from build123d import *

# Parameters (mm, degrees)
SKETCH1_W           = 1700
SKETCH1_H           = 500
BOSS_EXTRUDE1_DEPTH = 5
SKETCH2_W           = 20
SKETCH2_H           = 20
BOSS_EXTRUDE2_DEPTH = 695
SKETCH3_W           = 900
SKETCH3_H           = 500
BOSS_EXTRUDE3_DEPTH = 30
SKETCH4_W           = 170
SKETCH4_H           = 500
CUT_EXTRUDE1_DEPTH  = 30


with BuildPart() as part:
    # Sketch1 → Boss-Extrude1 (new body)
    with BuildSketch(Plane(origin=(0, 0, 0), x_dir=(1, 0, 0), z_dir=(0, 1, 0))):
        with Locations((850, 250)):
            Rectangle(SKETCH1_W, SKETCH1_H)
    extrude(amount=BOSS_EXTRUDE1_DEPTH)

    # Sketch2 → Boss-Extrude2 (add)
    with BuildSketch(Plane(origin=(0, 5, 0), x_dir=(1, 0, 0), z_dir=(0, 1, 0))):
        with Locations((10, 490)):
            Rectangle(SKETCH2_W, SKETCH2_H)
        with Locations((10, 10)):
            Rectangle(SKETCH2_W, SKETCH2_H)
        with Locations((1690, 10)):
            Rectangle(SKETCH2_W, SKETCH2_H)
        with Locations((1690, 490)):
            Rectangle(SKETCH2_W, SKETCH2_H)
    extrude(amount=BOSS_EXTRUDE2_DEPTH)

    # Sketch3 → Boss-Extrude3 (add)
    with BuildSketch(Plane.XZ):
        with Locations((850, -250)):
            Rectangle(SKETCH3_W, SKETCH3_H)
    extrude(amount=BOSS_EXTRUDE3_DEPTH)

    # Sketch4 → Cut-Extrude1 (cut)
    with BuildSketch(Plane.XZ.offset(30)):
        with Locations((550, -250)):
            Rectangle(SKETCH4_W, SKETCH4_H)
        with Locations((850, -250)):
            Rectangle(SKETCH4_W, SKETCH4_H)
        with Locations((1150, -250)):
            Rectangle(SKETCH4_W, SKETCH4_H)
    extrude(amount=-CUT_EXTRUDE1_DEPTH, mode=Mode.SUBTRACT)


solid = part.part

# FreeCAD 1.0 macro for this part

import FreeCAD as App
import Part
import Sketcher
from FreeCAD import Vector


def add_polygon(sketch, points):
    """Adds a closed chain of lines whose ends are joined by coincident constraints."""
    first, n = sketch.GeometryCount, len(points)
    for a, b in zip(points, points[1:] + points[:1]):
        sketch.addGeometry(Part.LineSegment(App.Vector(*a, 0), App.Vector(*b, 0)), False)
    for i in range(n):
        sketch.addConstraint(Sketcher.Constraint("Coincident", first + i, 2, first + (i + 1) % n, 1))

doc = App.newDocument("Part")
body = doc.addObject("PartDesign::Body", "Body")

sketch1 = body.newObject("Sketcher::SketchObject", "Sketch")
sketch1.AttachmentSupport = (doc.getObject("XZ_Plane"), [""])
sketch1.MapMode = "FlatFace"
add_polygon(sketch1, [(0, -500), (0, 0), (1700, 0), (1700, -500)])
sketch1.addConstraint([
    Sketcher.Constraint("Vertical", 0),
    Sketcher.Constraint("Horizontal", 1),
    Sketcher.Constraint("Vertical", 2),
    Sketcher.Constraint("Horizontal", 3),
    Sketcher.Constraint("Coincident", 0, 2, -1, 1),
    Sketcher.Constraint("DistanceX", 1, 1, 1, 2, 1700.0),
    Sketcher.Constraint("DistanceY", 0, 1, 0, 2, 500.0),
])
pad1 = body.newObject("PartDesign::Pad", "Pad")
pad1.Profile = sketch1
pad1.Length = 5
pad1.Reversed = True

sketch2 = body.newObject("Sketcher::SketchObject", "Sketch001")
sketch2.AttachmentSupport = (doc.getObject("XZ_Plane"), [""])
sketch2.MapMode = "FlatFace"
sketch2.AttachmentOffset = App.Placement(Vector(0, 0, -5), App.Rotation())
add_polygon(sketch2, [(0, -500), (0, -480), (20, -480), (20, -500)])
add_polygon(sketch2, [(0, -20), (0, 0), (20, 0), (20, -20)])
add_polygon(sketch2, [(1680, -20), (1680, 0), (1700, 0), (1700, -20)])
add_polygon(sketch2, [(1680, -500), (1680, -480), (1700, -480), (1700, -500)])
sketch2.addConstraint([
    Sketcher.Constraint("Vertical", 0),
    Sketcher.Constraint("Horizontal", 1),
    Sketcher.Constraint("Vertical", 2),
    Sketcher.Constraint("Horizontal", 3),
    Sketcher.Constraint("Vertical", 4),
    Sketcher.Constraint("Horizontal", 5),
    Sketcher.Constraint("Vertical", 6),
    Sketcher.Constraint("Horizontal", 7),
    Sketcher.Constraint("Vertical", 8),
    Sketcher.Constraint("Horizontal", 9),
    Sketcher.Constraint("Vertical", 10),
    Sketcher.Constraint("Horizontal", 11),
    Sketcher.Constraint("Vertical", 12),
    Sketcher.Constraint("Horizontal", 13),
    Sketcher.Constraint("Vertical", 14),
    Sketcher.Constraint("Horizontal", 15),
    Sketcher.Constraint("Coincident", 4, 2, -1, 1),
    Sketcher.Constraint("PointOnObject", 0, 2, -2),
    Sketcher.Constraint("PointOnObject", 8, 2, -1),
    Sketcher.Constraint("Horizontal", 7, 2, 10, 2),
    Sketcher.Constraint("Horizontal", 1, 2, 12, 2),
    Sketcher.Constraint("Horizontal", 3, 2, 14, 2),
    Sketcher.Constraint("Vertical", 2, 2, 5, 2),
    Sketcher.Constraint("Vertical", 11, 2, 12, 2),
    Sketcher.Constraint("Vertical", 10, 2, 13, 2),
    Sketcher.Constraint("Equal", 7, 9),
    Sketcher.Constraint("Equal", 15, 0),
    Sketcher.Constraint("Equal", 2, 4),
    Sketcher.Constraint("DistanceX", 1, 1, 1, 2, 20.0),
    Sketcher.Constraint("DistanceY", 0, 2, -1, 1, 480.0),
    Sketcher.Constraint("DistanceX", -1, 1, 8, 2, 1680.0),
])
pad2 = body.newObject("PartDesign::Pad", "Pad001")
pad2.Profile = sketch2
pad2.Length = 695
pad2.Reversed = True

sketch3 = body.newObject("Sketcher::SketchObject", "Sketch002")
sketch3.AttachmentSupport = (doc.getObject("XZ_Plane"), [""])
sketch3.MapMode = "FlatFace"
add_polygon(sketch3, [(400, 0), (400, -500), (1300, -500), (1300, 0)])
sketch3.addConstraint([
    Sketcher.Constraint("Vertical", 0),
    Sketcher.Constraint("Horizontal", 1),
    Sketcher.Constraint("Vertical", 2),
    Sketcher.Constraint("Horizontal", 3),
    Sketcher.Constraint("PointOnObject", 2, 2, -1),
    Sketcher.Constraint("DistanceX", 1, 1, 1, 2, 900.0),
    Sketcher.Constraint("DistanceY", 0, 2, 0, 1, 500.0),
    Sketcher.Constraint("DistanceX", -1, 1, 0, 2, 400.0),
])
pad3 = body.newObject("PartDesign::Pad", "Pad002")
pad3.Profile = sketch3
pad3.Length = 30

sketch4 = body.newObject("Sketcher::SketchObject", "Sketch003")
sketch4.AttachmentSupport = (doc.getObject("XZ_Plane"), [""])
sketch4.MapMode = "FlatFace"
sketch4.AttachmentOffset = App.Placement(Vector(0, 0, 30), App.Rotation())
add_polygon(sketch4, [(465, 0), (465, -500), (635, -500), (635, 0)])
add_polygon(sketch4, [(765, 0), (765, -500), (935, -500), (935, 0)])
add_polygon(sketch4, [(1065, 0), (1065, -500), (1235, -500), (1235, 0)])
sketch4.addConstraint([
    Sketcher.Constraint("Vertical", 0),
    Sketcher.Constraint("Horizontal", 1),
    Sketcher.Constraint("Vertical", 2),
    Sketcher.Constraint("Horizontal", 3),
    Sketcher.Constraint("Vertical", 4),
    Sketcher.Constraint("Horizontal", 5),
    Sketcher.Constraint("Vertical", 6),
    Sketcher.Constraint("Horizontal", 7),
    Sketcher.Constraint("Vertical", 8),
    Sketcher.Constraint("Horizontal", 9),
    Sketcher.Constraint("Vertical", 10),
    Sketcher.Constraint("Horizontal", 11),
    Sketcher.Constraint("PointOnObject", 2, 2, -1),
    Sketcher.Constraint("PointOnObject", 6, 2, -1),
    Sketcher.Constraint("PointOnObject", 10, 2, -1),
    Sketcher.Constraint("Horizontal", 1, 2, 4, 2),
    Sketcher.Constraint("Horizontal", 5, 2, 8, 2),
    Sketcher.Constraint("Equal", 3, 5),
    Sketcher.Constraint("Equal", 7, 9),
    Sketcher.Constraint("DistanceX", 1, 1, 1, 2, 170.0),
    Sketcher.Constraint("DistanceY", 0, 2, 0, 1, 500.0),
    Sketcher.Constraint("DistanceX", -1, 1, 0, 2, 465.0),
    Sketcher.Constraint("DistanceX", -1, 1, 4, 2, 765.0),
    Sketcher.Constraint("DistanceX", -1, 1, 8, 2, 1065.0),
])
pocket1 = body.newObject("PartDesign::Pocket", "Pocket")
pocket1.Profile = sketch4
pocket1.Length = 30

doc.recompute()
